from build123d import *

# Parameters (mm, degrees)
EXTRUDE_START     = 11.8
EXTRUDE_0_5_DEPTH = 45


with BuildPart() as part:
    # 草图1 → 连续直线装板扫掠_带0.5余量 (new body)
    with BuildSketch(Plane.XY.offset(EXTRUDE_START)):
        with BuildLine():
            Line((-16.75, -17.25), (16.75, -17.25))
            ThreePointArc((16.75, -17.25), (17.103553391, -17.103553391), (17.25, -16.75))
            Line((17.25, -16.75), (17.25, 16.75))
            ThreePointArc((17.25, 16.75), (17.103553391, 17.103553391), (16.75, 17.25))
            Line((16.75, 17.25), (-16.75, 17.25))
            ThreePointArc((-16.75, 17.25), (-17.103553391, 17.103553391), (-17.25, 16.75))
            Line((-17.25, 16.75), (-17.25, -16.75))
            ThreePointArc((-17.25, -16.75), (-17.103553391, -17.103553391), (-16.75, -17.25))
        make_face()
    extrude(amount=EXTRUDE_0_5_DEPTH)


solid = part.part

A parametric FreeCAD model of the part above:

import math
import FreeCAD as App
import Part
import Sketcher
from FreeCAD import Vector

doc = App.newDocument("Part")
body = doc.addObject("PartDesign::Body", "Body")

# Sketch on XY plane
sketch1 = doc.addObject("Sketcher::SketchObject", "Sketch")
body.addObject(sketch1)
sketch1.AttachmentSupport = (doc.XY_Plane, [""])
sketch1.MapMode = "FlatFace"
sketch1.AttachmentOffset = App.Placement(Vector(0, 0, 11.8), App.Rotation())
sketch1.addGeometry([
    Part.LineSegment(Vector(-16.75, -17.25, 0), Vector(16.75, -17.25, 0)),  # 0
    Part.ArcOfCircle(Part.Circle(Vector(16.75, -16.75, 0), Vector(0, 0, 1), 0.5), math.radians(-90), math.radians(0)),  # 1
    Part.LineSegment(Vector(17.25, -16.75, 0), Vector(17.25, 16.75, 0)),  # 2
    Part.ArcOfCircle(Part.Circle(Vector(16.75, 16.75, 0), Vector(0, 0, 1), 0.5), math.radians(0), math.radians(90)),  # 3
    Part.LineSegment(Vector(16.75, 17.25, 0), Vector(-16.75, 17.25, 0)),  # 4
    Part.ArcOfCircle(Part.Circle(Vector(-16.75, 16.75, 0), Vector(0, 0, 1), 0.5), math.radians(90), math.radians(180)),  # 5
    Part.LineSegment(Vector(-17.25, 16.75, 0), Vector(-17.25, -16.75, 0)),  # 6
    Part.ArcOfCircle(Part.Circle(Vector(-16.75, -16.75, 0), Vector(0, 0, 1), 0.5), math.radians(180), math.radians(270)),  # 7
], False)
sketch1.addConstraint([
    Sketcher.Constraint("Tangent", 0, 2, 1, 1),
    Sketcher.Constraint("Tangent", 1, 2, 2, 1),
    Sketcher.Constraint("Tangent", 2, 2, 3, 1),
    Sketcher.Constraint("Tangent", 3, 2, 4, 1),
    Sketcher.Constraint("Tangent", 4, 2, 5, 1),
    Sketcher.Constraint("Tangent", 5, 2, 6, 1),
    Sketcher.Constraint("Tangent", 6, 2, 7, 1),
    Sketcher.Constraint("Tangent", 7, 2, 0, 1),
    Sketcher.Constraint("Horizontal", 0),
    Sketcher.Constraint("Vertical", 2),
    Sketcher.Constraint("Horizontal", 4),
    Sketcher.Constraint("Vertical", 6),
    Sketcher.Constraint("Equal", 1, 3),
    Sketcher.Constraint("Equal", 3, 5),
    Sketcher.Constraint("Equal", 5, 7),
    Sketcher.Constraint("Symmetric", 1, 3, 5, 3, -1, 1),
    Sketcher.Constraint("Equal", 4, 2),
    Sketcher.Constraint("Radius", 1, 0.5),
    Sketcher.Constraint("DistanceX", 0, 1, 0, 2, 33.5),
])
pad1 = doc.addObject("PartDesign::Pad", "Pad")
body.addObject(pad1)
pad1.Profile = sketch1
pad1.Length = 45

doc.recompute()
